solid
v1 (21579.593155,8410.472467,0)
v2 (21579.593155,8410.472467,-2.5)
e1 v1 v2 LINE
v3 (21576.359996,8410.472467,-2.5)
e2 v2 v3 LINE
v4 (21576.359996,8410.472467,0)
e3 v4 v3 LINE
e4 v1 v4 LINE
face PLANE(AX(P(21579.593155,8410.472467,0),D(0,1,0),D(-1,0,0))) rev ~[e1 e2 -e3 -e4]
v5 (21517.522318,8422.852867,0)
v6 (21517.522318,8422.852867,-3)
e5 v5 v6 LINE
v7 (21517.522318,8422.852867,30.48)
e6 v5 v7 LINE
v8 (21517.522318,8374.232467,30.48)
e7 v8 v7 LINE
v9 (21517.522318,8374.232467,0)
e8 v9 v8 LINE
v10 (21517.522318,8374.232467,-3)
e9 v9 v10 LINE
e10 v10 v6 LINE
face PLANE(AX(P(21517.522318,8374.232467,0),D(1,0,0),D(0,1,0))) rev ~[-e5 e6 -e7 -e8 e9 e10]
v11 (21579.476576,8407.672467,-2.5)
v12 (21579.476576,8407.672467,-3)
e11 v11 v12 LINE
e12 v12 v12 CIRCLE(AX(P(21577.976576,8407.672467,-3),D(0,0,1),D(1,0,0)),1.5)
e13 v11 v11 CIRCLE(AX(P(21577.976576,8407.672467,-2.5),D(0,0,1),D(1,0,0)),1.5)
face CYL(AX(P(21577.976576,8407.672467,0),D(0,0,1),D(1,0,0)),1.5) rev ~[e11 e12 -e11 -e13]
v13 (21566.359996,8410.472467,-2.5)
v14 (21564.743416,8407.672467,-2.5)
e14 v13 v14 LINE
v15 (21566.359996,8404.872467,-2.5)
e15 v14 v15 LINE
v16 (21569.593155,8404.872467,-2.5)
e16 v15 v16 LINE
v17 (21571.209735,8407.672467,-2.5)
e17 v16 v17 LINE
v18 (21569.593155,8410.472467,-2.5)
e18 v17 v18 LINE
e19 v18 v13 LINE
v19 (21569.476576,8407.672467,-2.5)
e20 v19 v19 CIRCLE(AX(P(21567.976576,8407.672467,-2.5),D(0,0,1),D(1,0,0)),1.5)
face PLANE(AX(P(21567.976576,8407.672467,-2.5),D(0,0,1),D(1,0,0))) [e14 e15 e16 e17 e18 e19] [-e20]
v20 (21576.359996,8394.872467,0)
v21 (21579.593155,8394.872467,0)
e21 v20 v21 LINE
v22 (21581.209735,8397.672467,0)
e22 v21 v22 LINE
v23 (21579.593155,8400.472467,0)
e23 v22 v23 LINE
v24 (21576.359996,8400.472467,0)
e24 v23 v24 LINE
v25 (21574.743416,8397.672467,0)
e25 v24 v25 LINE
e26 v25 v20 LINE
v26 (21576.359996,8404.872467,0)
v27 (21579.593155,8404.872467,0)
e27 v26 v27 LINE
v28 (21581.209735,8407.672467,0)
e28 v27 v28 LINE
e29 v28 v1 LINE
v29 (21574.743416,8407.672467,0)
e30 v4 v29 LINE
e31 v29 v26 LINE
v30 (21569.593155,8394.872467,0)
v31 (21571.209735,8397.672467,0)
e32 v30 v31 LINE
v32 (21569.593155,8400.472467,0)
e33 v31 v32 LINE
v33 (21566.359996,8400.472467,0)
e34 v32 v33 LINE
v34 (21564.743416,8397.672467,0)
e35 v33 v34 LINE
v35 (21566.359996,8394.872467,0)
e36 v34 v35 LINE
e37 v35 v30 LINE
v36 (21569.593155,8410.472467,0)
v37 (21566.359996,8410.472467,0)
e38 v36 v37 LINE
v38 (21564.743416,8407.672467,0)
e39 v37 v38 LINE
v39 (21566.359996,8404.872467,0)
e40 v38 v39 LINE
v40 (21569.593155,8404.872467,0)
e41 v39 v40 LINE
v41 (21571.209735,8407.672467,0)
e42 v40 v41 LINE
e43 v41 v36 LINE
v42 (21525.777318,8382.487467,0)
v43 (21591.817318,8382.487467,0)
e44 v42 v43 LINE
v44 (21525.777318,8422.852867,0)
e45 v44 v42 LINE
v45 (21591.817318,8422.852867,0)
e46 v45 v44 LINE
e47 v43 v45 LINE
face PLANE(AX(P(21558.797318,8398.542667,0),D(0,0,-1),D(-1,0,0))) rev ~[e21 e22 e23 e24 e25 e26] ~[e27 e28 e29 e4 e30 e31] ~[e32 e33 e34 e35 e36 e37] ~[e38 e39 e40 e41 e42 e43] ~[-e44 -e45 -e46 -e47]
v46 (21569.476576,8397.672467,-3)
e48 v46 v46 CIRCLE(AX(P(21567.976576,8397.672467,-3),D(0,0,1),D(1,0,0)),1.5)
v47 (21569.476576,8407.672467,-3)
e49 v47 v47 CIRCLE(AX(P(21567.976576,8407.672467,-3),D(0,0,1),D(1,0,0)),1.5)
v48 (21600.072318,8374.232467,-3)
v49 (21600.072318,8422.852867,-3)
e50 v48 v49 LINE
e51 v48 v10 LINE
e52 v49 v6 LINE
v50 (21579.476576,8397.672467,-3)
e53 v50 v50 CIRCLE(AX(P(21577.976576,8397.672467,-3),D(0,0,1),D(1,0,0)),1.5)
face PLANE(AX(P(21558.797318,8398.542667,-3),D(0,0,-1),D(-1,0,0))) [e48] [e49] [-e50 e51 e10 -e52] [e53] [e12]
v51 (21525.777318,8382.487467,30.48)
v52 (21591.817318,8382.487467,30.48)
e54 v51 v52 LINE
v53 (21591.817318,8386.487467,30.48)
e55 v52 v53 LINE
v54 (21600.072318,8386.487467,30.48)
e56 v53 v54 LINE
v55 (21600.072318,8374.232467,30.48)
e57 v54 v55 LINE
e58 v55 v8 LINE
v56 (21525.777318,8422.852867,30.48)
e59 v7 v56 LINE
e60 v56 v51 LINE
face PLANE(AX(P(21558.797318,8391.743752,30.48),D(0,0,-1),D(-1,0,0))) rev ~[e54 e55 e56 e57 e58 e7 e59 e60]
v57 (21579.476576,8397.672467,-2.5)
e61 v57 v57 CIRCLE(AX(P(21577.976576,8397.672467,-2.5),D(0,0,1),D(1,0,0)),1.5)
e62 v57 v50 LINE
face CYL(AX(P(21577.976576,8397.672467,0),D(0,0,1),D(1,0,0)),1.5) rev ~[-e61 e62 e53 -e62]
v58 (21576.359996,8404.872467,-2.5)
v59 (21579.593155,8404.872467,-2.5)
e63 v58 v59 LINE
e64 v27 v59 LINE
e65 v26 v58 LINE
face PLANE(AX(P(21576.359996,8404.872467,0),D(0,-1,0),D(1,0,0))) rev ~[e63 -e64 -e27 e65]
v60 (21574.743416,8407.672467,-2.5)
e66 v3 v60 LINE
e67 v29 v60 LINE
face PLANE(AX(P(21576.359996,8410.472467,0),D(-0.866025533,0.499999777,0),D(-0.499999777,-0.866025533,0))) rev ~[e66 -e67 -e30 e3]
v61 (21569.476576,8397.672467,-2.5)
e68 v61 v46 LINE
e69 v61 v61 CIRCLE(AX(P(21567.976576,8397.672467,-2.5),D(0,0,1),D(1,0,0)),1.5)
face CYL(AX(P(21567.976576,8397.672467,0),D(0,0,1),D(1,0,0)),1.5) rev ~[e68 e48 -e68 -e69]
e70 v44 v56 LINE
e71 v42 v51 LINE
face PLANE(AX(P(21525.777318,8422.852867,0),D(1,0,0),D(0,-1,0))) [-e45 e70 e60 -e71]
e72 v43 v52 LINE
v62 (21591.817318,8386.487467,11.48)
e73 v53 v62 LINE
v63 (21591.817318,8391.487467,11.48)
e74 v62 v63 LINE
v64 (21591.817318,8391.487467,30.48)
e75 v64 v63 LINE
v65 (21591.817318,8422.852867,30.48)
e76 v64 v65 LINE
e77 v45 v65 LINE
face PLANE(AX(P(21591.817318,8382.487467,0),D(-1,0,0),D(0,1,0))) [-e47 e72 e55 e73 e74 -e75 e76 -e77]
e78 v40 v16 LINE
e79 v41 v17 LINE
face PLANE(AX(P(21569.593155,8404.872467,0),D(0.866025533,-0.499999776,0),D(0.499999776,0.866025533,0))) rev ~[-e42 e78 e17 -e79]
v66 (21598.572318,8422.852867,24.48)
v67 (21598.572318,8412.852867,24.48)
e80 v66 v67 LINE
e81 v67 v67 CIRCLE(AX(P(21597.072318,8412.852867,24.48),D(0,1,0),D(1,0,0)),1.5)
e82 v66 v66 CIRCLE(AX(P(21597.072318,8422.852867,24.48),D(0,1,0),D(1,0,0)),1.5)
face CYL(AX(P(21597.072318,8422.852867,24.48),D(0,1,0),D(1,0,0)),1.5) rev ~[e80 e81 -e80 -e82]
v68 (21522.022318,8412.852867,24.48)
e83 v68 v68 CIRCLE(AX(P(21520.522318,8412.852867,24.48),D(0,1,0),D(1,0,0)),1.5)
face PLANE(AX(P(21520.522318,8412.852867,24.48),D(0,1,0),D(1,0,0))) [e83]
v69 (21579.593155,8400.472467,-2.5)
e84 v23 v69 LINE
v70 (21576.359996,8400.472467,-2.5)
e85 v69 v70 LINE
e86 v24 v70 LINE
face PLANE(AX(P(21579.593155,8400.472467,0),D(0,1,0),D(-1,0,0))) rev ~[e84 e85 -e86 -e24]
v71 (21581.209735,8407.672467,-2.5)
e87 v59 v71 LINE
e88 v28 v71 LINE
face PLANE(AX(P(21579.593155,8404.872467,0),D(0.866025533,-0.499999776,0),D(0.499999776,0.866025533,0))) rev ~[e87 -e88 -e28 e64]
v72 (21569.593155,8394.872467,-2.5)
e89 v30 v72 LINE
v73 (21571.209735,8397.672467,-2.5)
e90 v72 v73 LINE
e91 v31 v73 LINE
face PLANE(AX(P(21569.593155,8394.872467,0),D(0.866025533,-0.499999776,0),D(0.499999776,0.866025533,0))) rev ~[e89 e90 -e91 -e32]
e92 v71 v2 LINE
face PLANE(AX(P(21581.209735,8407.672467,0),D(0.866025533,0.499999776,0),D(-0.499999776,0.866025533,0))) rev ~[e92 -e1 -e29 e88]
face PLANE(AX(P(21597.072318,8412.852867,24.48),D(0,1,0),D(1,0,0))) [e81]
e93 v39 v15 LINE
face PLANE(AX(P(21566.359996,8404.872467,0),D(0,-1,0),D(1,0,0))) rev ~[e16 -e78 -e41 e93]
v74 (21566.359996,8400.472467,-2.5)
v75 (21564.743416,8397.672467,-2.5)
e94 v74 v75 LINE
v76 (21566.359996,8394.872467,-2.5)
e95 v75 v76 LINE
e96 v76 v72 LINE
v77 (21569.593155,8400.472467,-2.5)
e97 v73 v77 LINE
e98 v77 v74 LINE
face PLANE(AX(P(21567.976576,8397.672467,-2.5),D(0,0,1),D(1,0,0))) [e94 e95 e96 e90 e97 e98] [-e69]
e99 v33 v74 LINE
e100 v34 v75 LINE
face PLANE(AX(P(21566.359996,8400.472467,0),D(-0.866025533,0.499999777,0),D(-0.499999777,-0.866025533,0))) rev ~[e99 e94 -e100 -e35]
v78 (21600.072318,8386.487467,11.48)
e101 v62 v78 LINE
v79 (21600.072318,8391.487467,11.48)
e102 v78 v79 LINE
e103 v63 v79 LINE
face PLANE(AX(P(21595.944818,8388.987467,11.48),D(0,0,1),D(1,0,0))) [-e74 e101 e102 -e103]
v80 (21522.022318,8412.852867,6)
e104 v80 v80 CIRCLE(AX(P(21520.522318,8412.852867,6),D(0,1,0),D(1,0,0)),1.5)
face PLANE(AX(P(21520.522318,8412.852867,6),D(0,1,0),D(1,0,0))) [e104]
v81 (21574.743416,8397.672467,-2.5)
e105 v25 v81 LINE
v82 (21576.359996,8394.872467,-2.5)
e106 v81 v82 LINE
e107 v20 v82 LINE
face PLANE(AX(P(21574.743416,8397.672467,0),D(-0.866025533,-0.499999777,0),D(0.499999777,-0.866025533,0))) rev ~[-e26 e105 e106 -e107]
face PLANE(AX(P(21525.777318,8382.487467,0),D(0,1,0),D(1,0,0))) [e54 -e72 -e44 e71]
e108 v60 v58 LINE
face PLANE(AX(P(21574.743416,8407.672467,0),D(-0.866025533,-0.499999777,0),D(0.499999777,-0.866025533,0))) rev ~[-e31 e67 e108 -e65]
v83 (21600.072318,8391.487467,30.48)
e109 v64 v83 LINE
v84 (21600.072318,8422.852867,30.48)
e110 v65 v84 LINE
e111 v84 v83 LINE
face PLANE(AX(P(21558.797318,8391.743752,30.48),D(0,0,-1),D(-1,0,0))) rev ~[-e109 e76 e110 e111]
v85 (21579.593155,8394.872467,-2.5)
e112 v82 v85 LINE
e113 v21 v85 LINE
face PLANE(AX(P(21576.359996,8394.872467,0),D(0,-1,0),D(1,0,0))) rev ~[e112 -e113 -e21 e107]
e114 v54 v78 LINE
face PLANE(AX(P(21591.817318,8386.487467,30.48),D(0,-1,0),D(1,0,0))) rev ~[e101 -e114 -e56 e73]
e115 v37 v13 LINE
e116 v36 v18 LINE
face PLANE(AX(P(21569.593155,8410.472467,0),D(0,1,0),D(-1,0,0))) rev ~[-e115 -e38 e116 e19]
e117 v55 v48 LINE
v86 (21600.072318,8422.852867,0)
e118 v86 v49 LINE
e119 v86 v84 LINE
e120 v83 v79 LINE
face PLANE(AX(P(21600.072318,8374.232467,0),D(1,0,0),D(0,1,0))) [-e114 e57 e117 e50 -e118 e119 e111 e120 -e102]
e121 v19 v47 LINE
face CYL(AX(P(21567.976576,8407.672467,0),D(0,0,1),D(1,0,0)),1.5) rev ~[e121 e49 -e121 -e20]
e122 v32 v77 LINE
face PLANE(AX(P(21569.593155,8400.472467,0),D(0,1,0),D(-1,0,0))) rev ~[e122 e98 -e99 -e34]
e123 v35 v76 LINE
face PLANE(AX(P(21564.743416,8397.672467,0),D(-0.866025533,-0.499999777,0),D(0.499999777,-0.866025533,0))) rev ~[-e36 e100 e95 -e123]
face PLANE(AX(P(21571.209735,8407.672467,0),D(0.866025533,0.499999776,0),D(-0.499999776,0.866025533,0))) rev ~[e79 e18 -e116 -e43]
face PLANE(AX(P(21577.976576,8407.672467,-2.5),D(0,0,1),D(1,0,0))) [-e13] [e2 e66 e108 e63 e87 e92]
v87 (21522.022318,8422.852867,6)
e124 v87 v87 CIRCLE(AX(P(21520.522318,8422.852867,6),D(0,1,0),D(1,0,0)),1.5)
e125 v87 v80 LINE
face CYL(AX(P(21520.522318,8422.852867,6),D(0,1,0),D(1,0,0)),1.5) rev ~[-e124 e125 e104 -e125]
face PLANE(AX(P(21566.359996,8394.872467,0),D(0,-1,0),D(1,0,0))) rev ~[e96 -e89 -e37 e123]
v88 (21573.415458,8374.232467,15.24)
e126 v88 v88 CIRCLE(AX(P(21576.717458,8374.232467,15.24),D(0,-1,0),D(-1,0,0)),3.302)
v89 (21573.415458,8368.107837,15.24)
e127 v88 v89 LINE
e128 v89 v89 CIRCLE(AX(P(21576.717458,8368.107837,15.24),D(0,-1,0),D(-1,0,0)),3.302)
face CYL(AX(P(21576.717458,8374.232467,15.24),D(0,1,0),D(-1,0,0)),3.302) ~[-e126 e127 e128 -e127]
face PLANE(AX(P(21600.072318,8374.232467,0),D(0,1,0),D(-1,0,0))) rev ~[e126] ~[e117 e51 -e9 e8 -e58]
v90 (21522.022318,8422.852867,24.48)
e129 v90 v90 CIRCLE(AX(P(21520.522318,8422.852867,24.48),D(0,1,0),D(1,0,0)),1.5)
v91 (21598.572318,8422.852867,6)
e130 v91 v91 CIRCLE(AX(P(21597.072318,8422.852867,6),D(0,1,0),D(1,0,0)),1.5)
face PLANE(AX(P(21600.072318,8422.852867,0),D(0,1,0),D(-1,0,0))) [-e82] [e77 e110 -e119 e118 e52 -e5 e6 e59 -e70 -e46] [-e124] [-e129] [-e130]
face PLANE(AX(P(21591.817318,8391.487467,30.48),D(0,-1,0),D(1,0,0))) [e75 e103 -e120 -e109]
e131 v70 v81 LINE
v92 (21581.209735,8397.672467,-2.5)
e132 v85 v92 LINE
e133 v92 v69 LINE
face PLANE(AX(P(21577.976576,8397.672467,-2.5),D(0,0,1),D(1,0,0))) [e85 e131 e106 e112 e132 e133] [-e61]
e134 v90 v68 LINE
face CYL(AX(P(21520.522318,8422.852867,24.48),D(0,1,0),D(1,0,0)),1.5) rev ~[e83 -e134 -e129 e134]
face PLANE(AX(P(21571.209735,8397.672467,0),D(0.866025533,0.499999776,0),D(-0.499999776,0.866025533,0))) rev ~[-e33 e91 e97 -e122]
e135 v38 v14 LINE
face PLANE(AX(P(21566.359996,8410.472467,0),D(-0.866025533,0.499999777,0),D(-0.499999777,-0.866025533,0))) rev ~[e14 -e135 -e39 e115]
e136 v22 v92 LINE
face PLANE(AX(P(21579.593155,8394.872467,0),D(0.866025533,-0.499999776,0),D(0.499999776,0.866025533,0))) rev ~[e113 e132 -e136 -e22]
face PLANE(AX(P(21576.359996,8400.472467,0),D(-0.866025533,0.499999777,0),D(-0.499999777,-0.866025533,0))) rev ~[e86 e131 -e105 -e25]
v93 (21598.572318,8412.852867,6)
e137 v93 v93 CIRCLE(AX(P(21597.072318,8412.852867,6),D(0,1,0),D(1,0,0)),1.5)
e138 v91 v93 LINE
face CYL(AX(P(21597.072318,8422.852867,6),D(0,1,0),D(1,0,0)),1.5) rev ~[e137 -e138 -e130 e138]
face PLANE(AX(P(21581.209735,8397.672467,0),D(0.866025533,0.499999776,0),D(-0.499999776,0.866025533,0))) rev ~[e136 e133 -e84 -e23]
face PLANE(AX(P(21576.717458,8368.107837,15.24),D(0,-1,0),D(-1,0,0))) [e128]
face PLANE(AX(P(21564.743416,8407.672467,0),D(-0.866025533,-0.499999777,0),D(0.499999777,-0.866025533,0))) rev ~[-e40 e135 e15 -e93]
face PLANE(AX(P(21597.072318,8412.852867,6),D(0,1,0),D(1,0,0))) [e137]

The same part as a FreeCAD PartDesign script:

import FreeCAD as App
import Part
import Sketcher
from FreeCAD import Vector
Q = App.Units.Quantity


def add_polygon(sketch, points):
    """Adds a closed chain of lines whose ends are joined by coincident constraints."""
    first, n = sketch.GeometryCount, len(points)
    for a, b in zip(points, points[1:] + points[:1]):
        sketch.addGeometry(Part.LineSegment(App.Vector(*a, 0), App.Vector(*b, 0)), False)
    for i in range(n):
        sketch.addConstraint(Sketcher.Constraint("Coincident", first + i, 2, first + (i + 1) % n, 1))

doc = App.newDocument("Part")
body = doc.addObject("PartDesign::Body", "Body")

sketch1 = body.newObject("Sketcher::SketchObject", "Sketch")
sketch1.AttachmentSupport = (doc.getObject("XY_Plane"), [""])
sketch1.MapMode = "FlatFace"
add_polygon(sketch1, [(21525.777318, 8422.852867), (21517.522318, 8422.852867), (21517.522318, 8374.232467), (21600.072318, 8374.232467), (21600.072318, 8422.852867), (21591.817318, 8422.852867), (21591.817318, 8382.487467), (21525.777318, 8382.487467)])
sketch1.addConstraint([
    Sketcher.Constraint("Horizontal", 0),
    Sketcher.Constraint("Vertical", 1),
    Sketcher.Constraint("Horizontal", 2),
    Sketcher.Constraint("Vertical", 3),
    Sketcher.Constraint("Horizontal", 4),
    Sketcher.Constraint("Vertical", 5),
    Sketcher.Constraint("Horizontal", 6),
    Sketcher.Constraint("Vertical", 7),
    Sketcher.Constraint("Horizontal", 0, 2, 3, 2),
    Sketcher.Constraint("Equal", 0, 4),
    Sketcher.Constraint("DistanceX", 2, 1, 2, 2, Q("82.55 mm")),
    Sketcher.Constraint("DistanceX", 6, 2, 6, 1, Q("66.04 mm")),
    Sketcher.Constraint("DistanceY", 1, 2, 1, 1, Q("48.6204 mm")),
    Sketcher.Constraint("DistanceY", 5, 2, 5, 1, Q("40.3654 mm")),
    Sketcher.Constraint("DistanceX", -1, 1, 0, 2, Q("21517.522318 mm")),
    Sketcher.Constraint("DistanceY", -1, 1, 0, 2, Q("8422.852867 mm")),
])
pad1 = body.newObject("PartDesign::Pad", "Pad")
pad1.Profile = sketch1
pad1.Length = 30.48

sketch2 = body.newObject("Sketcher::SketchObject", "Sketch001")
sketch2.AttachmentSupport = (doc.getObject("XZ_Plane"), [""])
sketch2.MapMode = "FlatFace"
sketch2.AttachmentOffset = App.Placement(Vector(0, 0, -8374.232467), App.Rotation())
sketch2.addGeometry(Part.Circle(Vector(21576.717458, 15.24, 0), Vector(0, 0, 1), 3.302), False)
sketch2.addConstraint([
    Sketcher.Constraint("Diameter", 0, Q("6.604 mm")),
    Sketcher.Constraint("DistanceY", -1, 1, 0, 3, Q("15.24 mm")),
    Sketcher.Constraint("DistanceX", -1, 1, 0, 3, Q("21576.717458 mm")),
])
pad2 = body.newObject("PartDesign::Pad", "Pad001")
pad2.Profile = sketch2
pad2.Length = 6.12463

sketch3 = body.newObject("Sketcher::SketchObject", "Sketch002")
sketch3.AttachmentSupport = (doc.getObject("XY_Plane"), [""])
sketch3.MapMode = "FlatFace"
add_polygon(sketch3, [(21600.072318, 8422.852867), (21600.072318, 8374.232467), (21517.522318, 8374.232467), (21517.522318, 8422.852867)])
sketch3.addConstraint([
    Sketcher.Constraint("Vertical", 0),
    Sketcher.Constraint("Horizontal", 1),
    Sketcher.Constraint("Vertical", 2),
    Sketcher.Constraint("Horizontal", 3),
    Sketcher.Constraint("DistanceX", 1, 2, 1, 1, Q("82.55 mm")),
    Sketcher.Constraint("DistanceY", 0, 2, 0, 1, Q("48.6204 mm")),
    Sketcher.Constraint("DistanceX", -1, 1, 0, 2, Q("21600.072318 mm")),
    Sketcher.Constraint("DistanceY", -1, 1, 0, 2, Q("8374.232467 mm")),
])
pad3 = body.newObject("PartDesign::Pad", "Pad002")
pad3.Profile = sketch3
pad3.Length = 3
pad3.Reversed = True

sketch4 = body.newObject("Sketcher::SketchObject", "Sketch003")
sketch4.AttachmentSupport = (doc.getObject("XY_Plane"), [""])
sketch4.MapMode = "FlatFace"
sketch4.addGeometry([
    Part.Circle(Vector(21577.976576, 8407.672467, 0), Vector(0, 0, 1), 1.5),
    Part.Circle(Vector(21567.976576, 8407.672467, 0), Vector(0, 0, 1), 1.5),
    Part.Circle(Vector(21567.976576, 8397.672467, 0), Vector(0, 0, 1), 1.5),
    Part.Circle(Vector(21577.976576, 8397.672467, 0), Vector(0, 0, 1), 1.5),
], False)
sketch4.addConstraint([
    Sketcher.Constraint("Equal", 0, 1),
    Sketcher.Constraint("Equal", 1, 2),
    Sketcher.Constraint("Equal", 2, 3),
    Sketcher.Constraint("Horizontal", 0, 3, 1, 3),
    Sketcher.Constraint("Horizontal", 2, 3, 3, 3),
    Sketcher.Constraint("Vertical", 1, 3, 2, 3),
    Sketcher.Constraint("Vertical", 0, 3, 3, 3),
    Sketcher.Constraint("Diameter", 0, Q("3 mm")),
    Sketcher.Constraint("DistanceX", 1, 3, 0, 3, Q("10 mm")),
    Sketcher.Constraint("DistanceY", 2, 3, 1, 3, Q("10 mm")),
    Sketcher.Constraint("DistanceX", -1, 1, 0, 3, Q("21577.976576 mm")),
    Sketcher.Constraint("DistanceY", -1, 1, 0, 3, Q("8407.672467 mm")),
])
pocket1 = body.newObject("PartDesign::Pocket", "Pocket")
pocket1.Profile = sketch4
pocket1.Length = 3

sketch5 = body.newObject("Sketcher::SketchObject", "Sketch004")
sketch5.AttachmentSupport = (doc.getObject("XY_Plane"), [""])
sketch5.MapMode = "FlatFace"
add_polygon(sketch5, [(21569.593155, 8410.472467), (21566.359996, 8410.472467), (21564.743416, 8407.672467), (21566.359996, 8404.872467), (21569.593155, 8404.872467), (21571.209735, 8407.672467)])
sketch5.addGeometry(Part.Circle(Vector(21567.976576, 8407.672467, 0), Vector(0, 0, 1), 1.5), False)
add_polygon(sketch5, [(21569.593155, 8400.472467), (21566.359996, 8400.472467), (21564.743416, 8397.672467), (21566.359996, 8394.872467), (21569.593155, 8394.872467), (21571.209735, 8397.672467)])
sketch5.addGeometry(Part.Circle(Vector(21567.976576, 8397.672467, 0), Vector(0, 0, 1), 1.5), False)
add_polygon(sketch5, [(21579.593155, 8400.472467), (21576.359996, 8400.472467), (21574.743416, 8397.672467), (21576.359996, 8394.872467), (21579.593155, 8394.872467), (21581.209735, 8397.672467)])
sketch5.addGeometry(Part.Circle(Vector(21577.976576, 8397.672467, 0), Vector(0, 0, 1), 1.5), False)
add_polygon(sketch5, [(21579.593155, 8410.472467), (21576.359996, 8410.472467), (21574.743416, 8407.672467), (21576.359996, 8404.872467), (21579.593155, 8404.872467), (21581.209735, 8407.672467)])
sketch5.addGeometry(Part.Circle(Vector(21577.976576, 8407.672467, 0), Vector(0, 0, 1), 1.5), False)
sketch5.addConstraint([
    Sketcher.Constraint("Horizontal", 0),
    Sketcher.Constraint("Horizontal", 3),
    Sketcher.Constraint("Horizontal", 7),
    Sketcher.Constraint("Horizontal", 10),
    Sketcher.Constraint("Horizontal", 14),
    Sketcher.Constraint("Horizontal", 17),
    Sketcher.Constraint("Horizontal", 21),
    Sketcher.Constraint("Horizontal", 24),
    Sketcher.Constraint("Equal", 6, 13),
    Sketcher.Constraint("Equal", 13, 20),
    Sketcher.Constraint("Equal", 20, 27),
    Sketcher.Constraint("Parallel", 1, 4),
    Sketcher.Constraint("Parallel", 2, 5),
    Sketcher.Constraint("Parallel", 4, 8),
    Sketcher.Constraint("Parallel", 5, 9),
    Sketcher.Constraint("Parallel", 8, 11),
    Sketcher.Constraint("Parallel", 9, 12),
    Sketcher.Constraint("Parallel", 11, 15),
    Sketcher.Constraint("Parallel", 12, 16),
    Sketcher.Constraint("Parallel", 15, 18),
    Sketcher.Constraint("Parallel", 16, 19),
    Sketcher.Constraint("Parallel", 18, 22),
    Sketcher.Constraint("Parallel", 19, 23),
    Sketcher.Constraint("Parallel", 22, 25),
    Sketcher.Constraint("Parallel", 23, 26),
    Sketcher.Constraint("Horizontal", 13, 3, 20, 3),
    Sketcher.Constraint("Horizontal", 6, 3, 27, 3),
    Sketcher.Constraint("Horizontal", 27, 3, 1, 2),
    Sketcher.Constraint("Horizontal", 1, 2, 4, 2),
    Sketcher.Constraint("Horizontal", 20, 3, 8, 2),
    Sketcher.Constraint("Horizontal", 8, 2, 11, 2),
    Sketcher.Constraint("Horizontal", 12, 2, 14, 2),
    Sketcher.Constraint("Horizontal", 11, 2, 15, 2),
    Sketcher.Constraint("Horizontal", 10, 2, 16, 2),
    Sketcher.Constraint("Horizontal", 15, 2, 18, 2),
    Sketcher.Constraint("Horizontal", 5, 2, 21, 2),
    Sketcher.Constraint("Horizontal", 4, 2, 22, 2),
    Sketcher.Constraint("Horizontal", 3, 2, 23, 2),
    Sketcher.Constraint("Horizontal", 22, 2, 25, 2),
    Sketcher.Constraint("Vertical", 6, 3, 13, 3),
    Sketcher.Constraint("Vertical", 20, 3, 27, 3),
    Sketcher.Constraint("Vertical", 0, 2, 2, 2),
    Sketcher.Constraint("Vertical", 3, 2, 5, 2),
    Sketcher.Constraint("Vertical", 2, 2, 7, 2),
    Sketcher.Constraint("Vertical", 1, 2, 8, 2),
    Sketcher.Constraint("Vertical", 7, 2, 9, 2),
    Sketcher.Constraint("Vertical", 5, 2, 10, 2),
    Sketcher.Constraint("Vertical", 16, 2, 21, 2),
    Sketcher.Constraint("Vertical", 19, 2, 24, 2),
    Sketcher.Constraint("Equal", 10, 14),
    Sketcher.Constraint("Diameter", 6, Q("3 mm")),
    Sketcher.Constraint("Angle", 1, Q("-119.999985 deg")),
    Sketcher.Constraint("DistanceY", 13, 3, 6, 3, Q("10 mm")),
    Sketcher.Constraint("DistanceX", 13, 3, 20, 3, Q("10 mm")),
    Sketcher.Constraint("DistanceY", 6, 3, 0, 2, Q("2.8 mm")),
    Sketcher.Constraint("DistanceX", 0, 2, 0, 1, Q("3.23316 mm")),
    Sketcher.Constraint("DistanceX", 0, 2, 6, 3, Q("1.61658 mm")),
    Sketcher.Constraint("DistanceX", 14, 2, 20, 3, Q("1.61658 mm")),
    Sketcher.Constraint("DistanceX", -1, 1, 6, 3, Q("21567.976576 mm")),
    Sketcher.Constraint("DistanceY", -1, 1, 6, 3, Q("8407.672467 mm")),
])
pocket2 = body.newObject("PartDesign::Pocket", "Pocket001")
pocket2.Profile = sketch5
pocket2.Length = 2.5

sketch6 = body.newObject("Sketcher::SketchObject", "Sketch005")
sketch6.AttachmentSupport = (doc.getObject("XZ_Plane"), [""])
sketch6.MapMode = "FlatFace"
sketch6.AttachmentOffset = App.Placement(Vector(0, 0, -8422.852867), App.Rotation())
sketch6.addGeometry([
    Part.Circle(Vector(21597.072318, 6, 0), Vector(0, 0, 1), 1.5),
    Part.Circle(Vector(21597.072318, 24.48, 0), Vector(0, 0, 1), 1.5),
    Part.Circle(Vector(21520.522318, 24.48, 0), Vector(0, 0, 1), 1.5),
    Part.Circle(Vector(21520.522318, 6, 0), Vector(0, 0, 1), 1.5),
], False)
sketch6.addConstraint([
    Sketcher.Constraint("Equal", 0, 1),
    Sketcher.Constraint("Equal", 1, 2),
    Sketcher.Constraint("Equal", 2, 3),
    Sketcher.Constraint("Horizontal", 1, 3, 2, 3),
    Sketcher.Constraint("Horizontal", 0, 3, 3, 3),
    Sketcher.Constraint("Vertical", 0, 3, 1, 3),
    Sketcher.Constraint("Vertical", 2, 3, 3, 3),
    Sketcher.Constraint("Diameter", 0, Q("3 mm")),
    Sketcher.Constraint("DistanceY", -1, 1, 0, 3, Q("6 mm")),
    Sketcher.Constraint("DistanceY", -1, 1, 1, 3, Q("24.48 mm")),
    Sketcher.Constraint("DistanceX", 2, 3, 1, 3, Q("76.55 mm")),
    Sketcher.Constraint("DistanceX", -1, 1, 0, 3, Q("21597.072318 mm")),
])
pocket3 = body.newObject("PartDesign::Pocket", "Pocket002")
pocket3.Profile = sketch6
pocket3.Length = 10
pocket3.Reversed = True

sketch7 = body.newObject("Sketcher::SketchObject", "Sketch006")
sketch7.AttachmentSupport = (doc.getObject("XY_Plane"), [""])
sketch7.MapMode = "FlatFace"
sketch7.AttachmentOffset = App.Placement(Vector(0, 0, 30.48), App.Rotation())
add_polygon(sketch7, [(21591.817318, 8391.487467), (21591.817318, 8386.487467), (21600.072318, 8386.487467), (21600.072318, 8391.487467)])
sketch7.addConstraint([
    Sketcher.Constraint("Vertical", 0),
    Sketcher.Constraint("Horizontal", 1),
    Sketcher.Constraint("Vertical", 2),
    Sketcher.Constraint("Horizontal", 3),
    Sketcher.Constraint("DistanceY", 0, 2, 0, 1, Q("5 mm")),
    Sketcher.Constraint("DistanceX", 1, 1, 1, 2, Q("8.255 mm")),
    Sketcher.Constraint("DistanceX", -1, 1, 0, 2, Q("21591.817318 mm")),
    Sketcher.Constraint("DistanceY", -1, 1, 0, 2, Q("8386.487467 mm")),
])
pocket4 = body.newObject("PartDesign::Pocket", "Pocket003")
pocket4.Profile = sketch7
pocket4.Length = 19

doc.recompute()
